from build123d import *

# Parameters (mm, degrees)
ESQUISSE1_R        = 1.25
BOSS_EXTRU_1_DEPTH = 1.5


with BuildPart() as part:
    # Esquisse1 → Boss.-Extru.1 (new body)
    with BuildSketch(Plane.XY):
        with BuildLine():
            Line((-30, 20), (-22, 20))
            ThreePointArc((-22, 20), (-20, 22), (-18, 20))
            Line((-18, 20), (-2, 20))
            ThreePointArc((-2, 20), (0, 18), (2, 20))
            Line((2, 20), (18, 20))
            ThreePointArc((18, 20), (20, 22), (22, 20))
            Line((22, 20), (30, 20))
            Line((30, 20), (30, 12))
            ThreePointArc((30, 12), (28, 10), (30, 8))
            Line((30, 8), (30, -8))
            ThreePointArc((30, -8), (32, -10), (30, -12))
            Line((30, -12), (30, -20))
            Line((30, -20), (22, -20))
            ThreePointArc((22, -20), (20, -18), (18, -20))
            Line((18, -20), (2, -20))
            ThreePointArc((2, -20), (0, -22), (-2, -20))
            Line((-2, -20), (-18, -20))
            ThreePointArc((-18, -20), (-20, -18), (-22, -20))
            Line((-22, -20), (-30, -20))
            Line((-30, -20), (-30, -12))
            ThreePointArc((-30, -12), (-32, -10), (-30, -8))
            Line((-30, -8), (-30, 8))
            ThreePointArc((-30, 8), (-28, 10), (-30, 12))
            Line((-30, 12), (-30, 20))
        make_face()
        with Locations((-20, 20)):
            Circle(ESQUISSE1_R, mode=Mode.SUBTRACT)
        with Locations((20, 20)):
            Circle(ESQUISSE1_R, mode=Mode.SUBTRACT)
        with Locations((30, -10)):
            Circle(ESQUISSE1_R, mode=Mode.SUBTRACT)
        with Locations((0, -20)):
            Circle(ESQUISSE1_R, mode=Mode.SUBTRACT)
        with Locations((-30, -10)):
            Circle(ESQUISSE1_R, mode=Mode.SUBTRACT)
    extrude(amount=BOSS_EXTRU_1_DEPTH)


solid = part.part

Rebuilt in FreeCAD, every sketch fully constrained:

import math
import FreeCAD as App
import Part
import Sketcher

V = App.Vector
Q = App.Units.Quantity

doc = App.newDocument("Part")
params = doc.addObject("Spreadsheet::Sheet", "Params")
for row, (alias, value) in enumerate([
    ("sketch1_radius", "2 mm"),
    ("sketch1_diameter", "2.5 mm"),
    ("sketch1_width", "8 mm"),
    ("sketch1_width2", "16 mm"),
    ("pad1_length", "1.5 mm"),
], start=1):
    params.set(f"A{row}", alias)
    params.set(f"B{row}", "=" + value)
    params.setAlias(f"B{row}", alias)

body = doc.addObject("PartDesign::Body", "Body")

# Sketch on XY plane
sketch1 = doc.addObject("Sketcher::SketchObject", "Sketch")
body.addObject(sketch1)
sketch1.AttachmentSupport = (doc.XY_Plane, [""])
sketch1.MapMode = "FlatFace"
sketch1.addGeometry([
    Part.LineSegment(V(-22, 20, 0), V(-30, 20, 0)),  # 0
    Part.LineSegment(V(-30, 20, 0), V(-30, 12, 0)),  # 1
    Part.ArcOfCircle(Part.Circle(V(-30, 10, 0), V(0, 0, 1), 2), math.radians(-90), math.radians(90)),  # 2
    Part.LineSegment(V(-30, 8, 0), V(-30, -8, 0)),  # 3
    Part.ArcOfCircle(Part.Circle(V(-30, -10, 0), V(0, 0, 1), 2), math.radians(90), math.radians(270)),  # 4
    Part.LineSegment(V(-30, -12, 0), V(-30, -20, 0)),  # 5
    Part.LineSegment(V(-30, -20, 0), V(-22, -20, 0)),  # 6
    Part.ArcOfCircle(Part.Circle(V(-20, -20, 0), V(0, 0, 1), 2), math.radians(0), math.radians(180)),  # 7
    Part.LineSegment(V(-18, -20, 0), V(-2, -20, 0)),  # 8
    Part.ArcOfCircle(Part.Circle(V(0, -20, 0), V(0, 0, 1), 2), math.radians(180), math.radians(360)),  # 9
    Part.LineSegment(V(2, -20, 0), V(18, -20, 0)),  # 10
    Part.ArcOfCircle(Part.Circle(V(20, -20, 0), V(0, 0, 1), 2), math.radians(0), math.radians(180)),  # 11
    Part.LineSegment(V(22, -20, 0), V(30, -20, 0)),  # 12
    Part.LineSegment(V(30, -20, 0), V(30, -12, 0)),  # 13
    Part.ArcOfCircle(Part.Circle(V(30, -10, 0), V(0, 0, 1), 2), math.radians(-90), math.radians(90)),  # 14
    Part.LineSegment(V(30, -8, 0), V(30, 8, 0)),  # 15
    Part.ArcOfCircle(Part.Circle(V(30, 10, 0), V(0, 0, 1), 2), math.radians(90), math.radians(270)),  # 16
    Part.LineSegment(V(30, 12, 0), V(30, 20, 0)),  # 17
    Part.LineSegment(V(30, 20, 0), V(22, 20, 0)),  # 18
    Part.ArcOfCircle(Part.Circle(V(20, 20, 0), V(0, 0, 1), 2), math.radians(0), math.radians(180)),  # 19
    Part.LineSegment(V(18, 20, 0), V(2, 20, 0)),  # 20
    Part.ArcOfCircle(Part.Circle(V(0, 20, 0), V(0, 0, 1), 2), math.radians(180), math.radians(360)),  # 21
    Part.LineSegment(V(-2, 20, 0), V(-18, 20, 0)),  # 22
    Part.ArcOfCircle(Part.Circle(V(-20, 20, 0), V(0, 0, 1), 2), math.radians(0), math.radians(180)),  # 23
    Part.Circle(V(30, -10, 0), V(0, 0, 1), 1.25),  # 24
    Part.Circle(V(0, -20, 0), V(0, 0, 1), 1.25),  # 25
    Part.Circle(V(-30, -10, 0), V(0, 0, 1), 1.25),  # 26
    Part.Circle(V(20, 20, 0), V(0, 0, 1), 1.25),  # 27
    Part.Circle(V(-20, 20, 0), V(0, 0, 1), 1.25),  # 28
], False)
sketch1.addConstraint([
    Sketcher.Constraint("Coincident", 0, 2, 1, 1),
    Sketcher.Constraint("Coincident", 1, 2, 2, 2),
    Sketcher.Constraint("Coincident", 2, 1, 3, 1),
    Sketcher.Constraint("Coincident", 3, 2, 4, 1),
    Sketcher.Constraint("Coincident", 4, 2, 5, 1),
    Sketcher.Constraint("Coincident", 5, 2, 6, 1),
    Sketcher.Constraint("Coincident", 6, 2, 7, 2),
    Sketcher.Constraint("Coincident", 7, 1, 8, 1),
    Sketcher.Constraint("Coincident", 8, 2, 9, 1),
    Sketcher.Constraint("Coincident", 9, 2, 10, 1),
    Sketcher.Constraint("Coincident", 10, 2, 11, 2),
    Sketcher.Constraint("Coincident", 11, 1, 12, 1),
    Sketcher.Constraint("Coincident", 12, 2, 13, 1),
    Sketcher.Constraint("Coincident", 13, 2, 14, 1),
    Sketcher.Constraint("Coincident", 14, 2, 15, 1),
    Sketcher.Constraint("Coincident", 15, 2, 16, 2),
    Sketcher.Constraint("Coincident", 16, 1, 17, 1),
    Sketcher.Constraint("Coincident", 17, 2, 18, 1),
    Sketcher.Constraint("Coincident", 18, 2, 19, 1),
    Sketcher.Constraint("Coincident", 19, 2, 20, 1),
    Sketcher.Constraint("Coincident", 20, 2, 21, 2),
    Sketcher.Constraint("Coincident", 21, 1, 22, 1),
    Sketcher.Constraint("Coincident", 22, 2, 23, 1),
    Sketcher.Constraint("Coincident", 23, 2, 0, 1),
    Sketcher.Constraint("Horizontal", 0),
    Sketcher.Constraint("Vertical", 1),
    Sketcher.Constraint("Vertical", 3),
    Sketcher.Constraint("Vertical", 5),
    Sketcher.Constraint("Horizontal", 6),
    Sketcher.Constraint("Horizontal", 8),
    Sketcher.Constraint("Horizontal", 10),
    Sketcher.Constraint("Horizontal", 12),
    Sketcher.Constraint("Vertical", 13),
    Sketcher.Constraint("Vertical", 15),
    Sketcher.Constraint("Vertical", 17),
    Sketcher.Constraint("Horizontal", 18),
    Sketcher.Constraint("Horizontal", 20),
    Sketcher.Constraint("Horizontal", 22),
    Sketcher.Constraint("Coincident", 24, 3, 14, 3),
    Sketcher.Constraint("Coincident", 25, 3, 9, 3),
    Sketcher.Constraint("Coincident", 26, 3, 4, 3),
    Sketcher.Constraint("Coincident", 27, 3, 19, 3),
    Sketcher.Constraint("Coincident", 28, 3, 23, 3),
    Sketcher.Constraint("Equal", 2, 4),
    Sketcher.Constraint("Equal", 4, 7),
    Sketcher.Constraint("Equal", 7, 9),
    Sketcher.Constraint("Equal", 9, 11),
    Sketcher.Constraint("Equal", 11, 14),
    Sketcher.Constraint("Equal", 14, 16),
    Sketcher.Constraint("Equal", 16, 19),
    Sketcher.Constraint("Equal", 19, 21),
    Sketcher.Constraint("Equal", 21, 23),
    Sketcher.Constraint("Equal", 24, 25),
    Sketcher.Constraint("Equal", 25, 26),
    Sketcher.Constraint("Equal", 26, 27),
    Sketcher.Constraint("Equal", 27, 28),
    Sketcher.Constraint("Symmetric", 2, 3, 14, 3, -1, 1),
    Sketcher.Constraint("Symmetric", 4, 3, 16, 3, -1, 1),
    Sketcher.Constraint("Symmetric", 7, 3, 19, 3, -1, 1),
    Sketcher.Constraint("Symmetric", 9, 3, 21, 3, -1, 1),
    Sketcher.Constraint("Symmetric", 11, 3, 23, 3, -1, 1),
    Sketcher.Constraint("Symmetric", 0, 2, 12, 2, -1, 1),
    Sketcher.Constraint("Symmetric", 5, 2, 17, 2, -1, 1),
    Sketcher.Constraint("Symmetric", 7, 3, 11, 3, -2),
    Sketcher.Constraint("Symmetric", 4, 3, 14, 3, -2),
    Sketcher.Constraint("Symmetric", 8, 2, 9, 2, -2),
    Sketcher.Constraint("Symmetric", 5, 2, 12, 2, -2),
    Sketcher.Constraint("Horizontal", 7, 3, 9, 3),
    Sketcher.Constraint("Horizontal", 28, 3, 0, 2),
    Sketcher.Constraint("Horizontal", 6, 2, 7, 1),
    Sketcher.Constraint("Horizontal", 18, 2, 19, 2),
    Sketcher.Constraint("Horizontal", 20, 2, 21, 1),
    Sketcher.Constraint("Vertical", 26, 3, 0, 2),
    Sketcher.Constraint("Vertical", 1, 2, 2, 1),
    Sketcher.Constraint("Vertical", 13, 2, 14, 2),
    Sketcher.Constraint("Equal", 18, 1),
    Sketcher.Constraint("Equal", 22, 3),
    Sketcher.Constraint("Radius", 2, Q("2 mm")),
    Sketcher.Constraint("Diameter", 24, Q("2.5 mm")),
    Sketcher.Constraint("DistanceX", 0, 2, 0, 1, Q("8 mm")),
    Sketcher.Constraint("DistanceX", 8, 1, 8, 2, Q("16 mm")),
])
sketch1.setExpression("Constraints[77]", "Params.sketch1_radius")
sketch1.setExpression("Constraints[78]", "Params.sketch1_diameter")
sketch1.setExpression("Constraints[79]", "Params.sketch1_width")
sketch1.setExpression("Constraints[80]", "Params.sketch1_width2")
pad1 = doc.addObject("PartDesign::Pad", "Pad")
body.addObject(pad1)
pad1.Profile = sketch1
pad1.setExpression("Length", "Params.pad1_length")

doc.recompute()
